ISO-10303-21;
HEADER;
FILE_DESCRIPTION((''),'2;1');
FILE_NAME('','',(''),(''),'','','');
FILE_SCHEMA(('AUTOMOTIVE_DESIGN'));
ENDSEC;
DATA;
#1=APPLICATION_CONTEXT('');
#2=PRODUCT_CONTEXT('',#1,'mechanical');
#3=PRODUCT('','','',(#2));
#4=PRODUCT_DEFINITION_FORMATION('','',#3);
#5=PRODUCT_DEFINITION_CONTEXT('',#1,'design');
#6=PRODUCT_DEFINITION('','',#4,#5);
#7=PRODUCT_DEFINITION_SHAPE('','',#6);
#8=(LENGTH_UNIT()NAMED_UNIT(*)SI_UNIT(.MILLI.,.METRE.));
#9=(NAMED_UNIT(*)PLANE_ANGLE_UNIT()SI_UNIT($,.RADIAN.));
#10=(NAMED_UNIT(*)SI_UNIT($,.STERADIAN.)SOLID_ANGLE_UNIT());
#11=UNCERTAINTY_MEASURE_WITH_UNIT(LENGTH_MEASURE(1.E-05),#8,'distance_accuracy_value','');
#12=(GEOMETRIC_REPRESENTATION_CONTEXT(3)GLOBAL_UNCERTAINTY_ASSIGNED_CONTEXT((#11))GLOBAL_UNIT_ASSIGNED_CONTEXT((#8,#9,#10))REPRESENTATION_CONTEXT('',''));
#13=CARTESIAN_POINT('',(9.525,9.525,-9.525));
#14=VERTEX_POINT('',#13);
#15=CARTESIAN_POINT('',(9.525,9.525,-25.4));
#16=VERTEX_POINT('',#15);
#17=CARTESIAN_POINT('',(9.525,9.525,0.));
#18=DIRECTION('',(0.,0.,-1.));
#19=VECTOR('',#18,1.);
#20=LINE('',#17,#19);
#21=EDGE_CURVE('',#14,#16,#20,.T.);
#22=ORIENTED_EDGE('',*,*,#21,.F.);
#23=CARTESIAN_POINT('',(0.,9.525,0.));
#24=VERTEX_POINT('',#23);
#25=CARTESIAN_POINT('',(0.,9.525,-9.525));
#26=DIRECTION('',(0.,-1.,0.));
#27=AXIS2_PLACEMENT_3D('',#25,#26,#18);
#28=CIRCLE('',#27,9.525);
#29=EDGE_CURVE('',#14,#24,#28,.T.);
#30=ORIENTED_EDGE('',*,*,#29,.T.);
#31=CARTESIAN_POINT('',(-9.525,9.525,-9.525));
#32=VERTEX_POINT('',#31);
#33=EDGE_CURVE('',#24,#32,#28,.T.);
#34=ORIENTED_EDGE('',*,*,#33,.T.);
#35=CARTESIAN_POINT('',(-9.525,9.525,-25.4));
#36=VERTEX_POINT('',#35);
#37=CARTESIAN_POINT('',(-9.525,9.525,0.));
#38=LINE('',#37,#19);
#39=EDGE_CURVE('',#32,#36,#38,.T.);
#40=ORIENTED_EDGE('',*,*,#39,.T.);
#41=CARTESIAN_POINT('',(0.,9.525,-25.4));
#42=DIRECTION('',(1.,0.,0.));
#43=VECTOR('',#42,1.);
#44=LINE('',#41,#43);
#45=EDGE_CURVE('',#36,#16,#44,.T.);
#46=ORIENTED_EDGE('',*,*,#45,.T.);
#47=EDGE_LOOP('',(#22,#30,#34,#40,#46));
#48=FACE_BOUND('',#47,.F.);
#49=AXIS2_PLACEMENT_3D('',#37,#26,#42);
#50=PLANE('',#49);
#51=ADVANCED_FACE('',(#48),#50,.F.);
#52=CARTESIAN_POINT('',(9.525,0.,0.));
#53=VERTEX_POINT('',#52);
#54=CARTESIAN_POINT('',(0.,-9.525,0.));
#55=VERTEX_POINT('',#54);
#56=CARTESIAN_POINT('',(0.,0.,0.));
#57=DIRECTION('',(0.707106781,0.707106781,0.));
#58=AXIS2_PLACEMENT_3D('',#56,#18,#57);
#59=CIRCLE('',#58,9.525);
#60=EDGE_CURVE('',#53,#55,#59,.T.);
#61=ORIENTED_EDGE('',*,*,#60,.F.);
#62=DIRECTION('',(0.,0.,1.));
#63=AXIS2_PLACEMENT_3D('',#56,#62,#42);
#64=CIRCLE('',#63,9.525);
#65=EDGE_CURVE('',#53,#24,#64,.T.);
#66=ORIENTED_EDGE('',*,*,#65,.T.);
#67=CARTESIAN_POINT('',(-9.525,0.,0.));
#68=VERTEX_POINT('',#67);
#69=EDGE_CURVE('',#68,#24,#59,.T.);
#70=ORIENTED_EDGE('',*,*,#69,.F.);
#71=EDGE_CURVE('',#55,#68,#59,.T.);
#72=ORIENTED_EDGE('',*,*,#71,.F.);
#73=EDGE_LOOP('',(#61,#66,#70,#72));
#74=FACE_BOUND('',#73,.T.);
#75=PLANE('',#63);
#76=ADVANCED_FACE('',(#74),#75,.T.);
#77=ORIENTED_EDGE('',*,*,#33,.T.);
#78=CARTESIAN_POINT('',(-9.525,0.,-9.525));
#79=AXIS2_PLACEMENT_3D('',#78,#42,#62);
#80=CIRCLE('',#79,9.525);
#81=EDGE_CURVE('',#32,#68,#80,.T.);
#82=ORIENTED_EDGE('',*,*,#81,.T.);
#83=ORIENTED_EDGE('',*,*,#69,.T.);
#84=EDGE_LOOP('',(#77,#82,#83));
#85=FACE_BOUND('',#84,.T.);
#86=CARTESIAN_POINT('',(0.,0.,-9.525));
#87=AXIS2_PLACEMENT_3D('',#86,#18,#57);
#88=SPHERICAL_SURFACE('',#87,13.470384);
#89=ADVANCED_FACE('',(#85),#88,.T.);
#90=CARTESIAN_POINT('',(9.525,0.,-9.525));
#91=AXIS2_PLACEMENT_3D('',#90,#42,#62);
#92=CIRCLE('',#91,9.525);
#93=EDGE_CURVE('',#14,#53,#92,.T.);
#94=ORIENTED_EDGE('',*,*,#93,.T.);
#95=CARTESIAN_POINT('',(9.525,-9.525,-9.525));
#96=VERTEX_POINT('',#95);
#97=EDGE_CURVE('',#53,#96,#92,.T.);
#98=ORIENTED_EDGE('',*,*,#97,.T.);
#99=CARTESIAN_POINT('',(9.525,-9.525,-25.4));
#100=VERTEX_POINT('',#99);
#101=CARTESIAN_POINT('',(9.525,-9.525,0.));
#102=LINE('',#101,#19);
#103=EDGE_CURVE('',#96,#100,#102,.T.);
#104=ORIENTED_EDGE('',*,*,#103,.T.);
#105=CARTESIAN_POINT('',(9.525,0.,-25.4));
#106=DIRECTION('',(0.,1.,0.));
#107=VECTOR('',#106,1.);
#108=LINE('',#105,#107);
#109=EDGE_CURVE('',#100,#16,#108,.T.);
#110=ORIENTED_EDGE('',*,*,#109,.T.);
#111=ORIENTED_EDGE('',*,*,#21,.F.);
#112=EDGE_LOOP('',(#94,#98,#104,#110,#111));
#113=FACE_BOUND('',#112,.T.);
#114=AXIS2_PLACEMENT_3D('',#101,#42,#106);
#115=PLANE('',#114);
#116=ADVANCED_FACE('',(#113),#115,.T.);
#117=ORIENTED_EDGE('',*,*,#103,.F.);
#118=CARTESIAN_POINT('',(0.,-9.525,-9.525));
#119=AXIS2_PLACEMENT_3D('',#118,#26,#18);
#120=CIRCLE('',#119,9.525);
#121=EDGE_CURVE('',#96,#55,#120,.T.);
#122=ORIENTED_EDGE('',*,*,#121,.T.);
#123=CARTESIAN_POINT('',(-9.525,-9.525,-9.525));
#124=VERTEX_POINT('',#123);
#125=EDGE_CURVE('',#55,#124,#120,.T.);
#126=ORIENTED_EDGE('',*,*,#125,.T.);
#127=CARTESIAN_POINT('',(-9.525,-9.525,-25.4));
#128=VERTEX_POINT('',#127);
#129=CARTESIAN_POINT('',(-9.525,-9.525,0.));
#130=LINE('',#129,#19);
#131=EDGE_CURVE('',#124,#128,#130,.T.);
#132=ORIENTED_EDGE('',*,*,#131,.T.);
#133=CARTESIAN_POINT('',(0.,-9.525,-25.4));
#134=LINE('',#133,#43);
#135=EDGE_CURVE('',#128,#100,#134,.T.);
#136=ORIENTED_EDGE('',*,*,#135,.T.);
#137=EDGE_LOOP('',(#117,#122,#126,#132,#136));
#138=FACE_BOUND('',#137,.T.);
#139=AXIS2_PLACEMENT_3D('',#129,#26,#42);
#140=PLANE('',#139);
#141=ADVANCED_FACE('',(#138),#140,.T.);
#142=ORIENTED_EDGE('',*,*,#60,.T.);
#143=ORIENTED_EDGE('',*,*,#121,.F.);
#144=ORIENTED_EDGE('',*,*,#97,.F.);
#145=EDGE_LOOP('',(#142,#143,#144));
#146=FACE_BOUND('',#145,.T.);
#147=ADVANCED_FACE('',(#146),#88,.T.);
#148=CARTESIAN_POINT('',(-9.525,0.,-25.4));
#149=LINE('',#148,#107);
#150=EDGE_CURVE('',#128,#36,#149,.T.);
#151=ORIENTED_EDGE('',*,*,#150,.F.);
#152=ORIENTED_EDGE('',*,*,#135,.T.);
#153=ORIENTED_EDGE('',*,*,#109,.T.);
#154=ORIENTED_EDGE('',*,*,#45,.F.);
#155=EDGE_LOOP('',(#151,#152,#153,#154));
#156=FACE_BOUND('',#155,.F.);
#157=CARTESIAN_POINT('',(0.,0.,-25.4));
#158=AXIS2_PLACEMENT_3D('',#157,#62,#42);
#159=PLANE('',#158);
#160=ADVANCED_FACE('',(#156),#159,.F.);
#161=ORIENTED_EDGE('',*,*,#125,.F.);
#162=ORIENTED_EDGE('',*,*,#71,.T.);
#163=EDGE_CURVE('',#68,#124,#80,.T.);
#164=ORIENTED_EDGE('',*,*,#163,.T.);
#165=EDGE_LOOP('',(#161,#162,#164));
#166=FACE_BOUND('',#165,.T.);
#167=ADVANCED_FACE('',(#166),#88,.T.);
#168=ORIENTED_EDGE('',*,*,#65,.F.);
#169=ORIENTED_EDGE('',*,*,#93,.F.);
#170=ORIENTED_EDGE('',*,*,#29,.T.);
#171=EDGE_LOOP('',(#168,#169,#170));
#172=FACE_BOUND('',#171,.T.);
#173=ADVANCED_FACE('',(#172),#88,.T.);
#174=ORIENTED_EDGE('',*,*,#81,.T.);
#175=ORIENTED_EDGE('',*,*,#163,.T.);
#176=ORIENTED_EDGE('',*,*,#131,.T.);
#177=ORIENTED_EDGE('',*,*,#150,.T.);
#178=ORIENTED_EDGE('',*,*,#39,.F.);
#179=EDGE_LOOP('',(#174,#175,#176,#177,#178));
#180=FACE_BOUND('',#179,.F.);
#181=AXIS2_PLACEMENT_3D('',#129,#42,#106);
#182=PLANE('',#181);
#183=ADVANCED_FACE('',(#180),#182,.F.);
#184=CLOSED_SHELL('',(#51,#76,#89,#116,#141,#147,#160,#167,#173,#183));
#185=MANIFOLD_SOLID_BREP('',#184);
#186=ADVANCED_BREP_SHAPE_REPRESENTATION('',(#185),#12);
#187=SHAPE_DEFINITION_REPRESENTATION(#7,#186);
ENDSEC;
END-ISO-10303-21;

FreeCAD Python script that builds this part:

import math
import FreeCAD as App
import Part
import Sketcher

V = App.Vector
Q = App.Units.Quantity

doc = App.newDocument("Part")
body = doc.addObject("PartDesign::Body", "Body")

sketch1 = doc.addObject("Sketcher::SketchObject", "Sketch")
body.addObject(sketch1)
sketch1.AttachmentSupport = (doc.XY_Plane, [""])
sketch1.MapMode = "FlatFace"
sketch1.addGeometry(Part.LineSegment(V(-10, 10, 0), V(-10, -10, 0)), False)
sketch1.addGeometry(Part.LineSegment(V(-10, -10, 0), V(10, -10, 0)), False)
sketch1.addGeometry(Part.LineSegment(V(10, -10, 0), V(10, 10, 0)), False)
sketch1.addGeometry(Part.LineSegment(V(10, 10, 0), V(-10, 10, 0)), False)
sketch1.addConstraint(Sketcher.Constraint("Coincident", 0, 2, 1, 1))
sketch1.addConstraint(Sketcher.Constraint("Coincident", 1, 2, 2, 1))
sketch1.addConstraint(Sketcher.Constraint("Coincident", 2, 2, 3, 1))
sketch1.addConstraint(Sketcher.Constraint("Coincident", 3, 2, 0, 1))
sketch1.addConstraint(Sketcher.Constraint("Vertical", 0))
sketch1.addConstraint(Sketcher.Constraint("Horizontal", 1))
sketch1.addConstraint(Sketcher.Constraint("Vertical", 2))
sketch1.addConstraint(Sketcher.Constraint("Horizontal", 3))
sketch1.addConstraint(Sketcher.Constraint("Symmetric", 0, 2, 2, 2, -1, 1))
sketch1.addConstraint(Sketcher.Constraint("Equal", 3, 0))
sketch1.addConstraint(Sketcher.Constraint("DistanceX", 1, 1, 1, 2, Q("0.75 in")))
pad1 = doc.addObject("PartDesign::Pad", "Pad")
body.addObject(pad1)
pad1.Profile = sketch1
pad1.Length = Q("1 in")
pad1.Reversed = True

sketch2 = doc.addObject("Sketcher::SketchObject", "Sketch001")
body.addObject(sketch2)
sketch2.Placement = App.Placement(V(0, 0, 0), App.Rotation(V(0.707106781, 0.707106781, 0), V(0, 0, 0.999999999), V(0.707106781, -0.707106781, 0), "ZXY"))
sketch2.addGeometry(Part.ArcOfCircle(Part.Circle(V(0, -9.5, 0), V(0, 0, 1), 13.5), math.radians(0), math.radians(90)), False)
sketch2.addGeometry(Part.LineSegment(V(13.5, -9.5, 0), V(16, -9.5, 0)), False)
sketch2.addGeometry(Part.LineSegment(V(16, -9.5, 0), V(16, 6.5, 0)), False)
sketch2.addGeometry(Part.LineSegment(V(16, 6.5, 0), V(0, 6.5, 0)), False)
sketch2.addGeometry(Part.LineSegment(V(0, 6.5, 0), V(0, 3.9, 0)), False)
sketch2.addConstraint(Sketcher.Constraint("Coincident", 0, 1, 1, 1))
sketch2.addConstraint(Sketcher.Constraint("Coincident", 1, 2, 2, 1))
sketch2.addConstraint(Sketcher.Constraint("Coincident", 2, 2, 3, 1))
sketch2.addConstraint(Sketcher.Constraint("Coincident", 3, 2, 4, 1))
sketch2.addConstraint(Sketcher.Constraint("Coincident", 4, 2, 0, 2))
sketch2.addConstraint(Sketcher.Constraint("Horizontal", 1))
sketch2.addConstraint(Sketcher.Constraint("Vertical", 2))
sketch2.addConstraint(Sketcher.Constraint("Horizontal", 3))
sketch2.addConstraint(Sketcher.Constraint("Vertical", 4))
sketch2.addConstraint(Sketcher.Constraint("PointOnObject", 0, 3, -2))
sketch2.addConstraint(Sketcher.Constraint("PointOnObject", 3, 2, -2))
sketch2.addConstraint(Sketcher.Constraint("Equal", 3, 2))
sketch2.addConstraint(Sketcher.Constraint("Equal", 1, 4))
sketch2.addConstraint(Sketcher.Constraint("DistanceX", 1, 1, 1, 2, Q("0.1 in")))
sketch2.addConstraint(Sketcher.Constraint("DistanceY", 0, 3, -1, 1, Q("0.375 in")))
sketch2.addConstraint(Sketcher.Constraint("Radius", 0, Q("13.470384 mm")))
groove = doc.addObject("PartDesign::Groove", "Groove")
body.addObject(groove)
groove.Profile = sketch2
groove.ReferenceAxis = (sketch2, ["V_Axis"])
groove.Angle = 360

doc.recompute()
